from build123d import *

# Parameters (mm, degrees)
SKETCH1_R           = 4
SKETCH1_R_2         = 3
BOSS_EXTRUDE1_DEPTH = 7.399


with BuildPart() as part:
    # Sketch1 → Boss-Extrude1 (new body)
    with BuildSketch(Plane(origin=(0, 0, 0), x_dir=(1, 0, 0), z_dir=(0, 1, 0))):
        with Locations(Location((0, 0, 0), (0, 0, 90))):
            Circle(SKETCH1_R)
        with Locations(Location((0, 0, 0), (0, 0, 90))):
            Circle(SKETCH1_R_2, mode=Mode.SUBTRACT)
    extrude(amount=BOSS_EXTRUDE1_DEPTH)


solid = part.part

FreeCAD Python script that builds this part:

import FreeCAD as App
import Part
import Sketcher
from FreeCAD import Vector
Q = App.Units.Quantity

doc = App.newDocument("Part")
body = doc.addObject("PartDesign::Body", "Body")

# Sketch on XZ plane
sketch1 = doc.addObject("Sketcher::SketchObject", "Sketch")
body.addObject(sketch1)
sketch1.AttachmentSupport = (doc.XZ_Plane, [""])
sketch1.MapMode = "FlatFace"
sketch1.addGeometry([
    Part.Circle(Vector(0, 0, 0), Vector(0, 0, 1), 4),
    Part.Circle(Vector(0, 0, 0), Vector(0, 0, 1), 3),
], False)
sketch1.addConstraint([
    Sketcher.Constraint("Coincident", 0, 3, -1, 1),
    Sketcher.Constraint("Coincident", 1, 3, -1, 1),
    Sketcher.Constraint("Diameter", 0, Q("8 mm")),
    Sketcher.Constraint("Diameter", 1, Q("6 mm")),
])
pad1 = doc.addObject("PartDesign::Pad", "Pad")
body.addObject(pad1)
pad1.Profile = sketch1
pad1.Length = 7.399
pad1.Reversed = True

doc.recompute()
